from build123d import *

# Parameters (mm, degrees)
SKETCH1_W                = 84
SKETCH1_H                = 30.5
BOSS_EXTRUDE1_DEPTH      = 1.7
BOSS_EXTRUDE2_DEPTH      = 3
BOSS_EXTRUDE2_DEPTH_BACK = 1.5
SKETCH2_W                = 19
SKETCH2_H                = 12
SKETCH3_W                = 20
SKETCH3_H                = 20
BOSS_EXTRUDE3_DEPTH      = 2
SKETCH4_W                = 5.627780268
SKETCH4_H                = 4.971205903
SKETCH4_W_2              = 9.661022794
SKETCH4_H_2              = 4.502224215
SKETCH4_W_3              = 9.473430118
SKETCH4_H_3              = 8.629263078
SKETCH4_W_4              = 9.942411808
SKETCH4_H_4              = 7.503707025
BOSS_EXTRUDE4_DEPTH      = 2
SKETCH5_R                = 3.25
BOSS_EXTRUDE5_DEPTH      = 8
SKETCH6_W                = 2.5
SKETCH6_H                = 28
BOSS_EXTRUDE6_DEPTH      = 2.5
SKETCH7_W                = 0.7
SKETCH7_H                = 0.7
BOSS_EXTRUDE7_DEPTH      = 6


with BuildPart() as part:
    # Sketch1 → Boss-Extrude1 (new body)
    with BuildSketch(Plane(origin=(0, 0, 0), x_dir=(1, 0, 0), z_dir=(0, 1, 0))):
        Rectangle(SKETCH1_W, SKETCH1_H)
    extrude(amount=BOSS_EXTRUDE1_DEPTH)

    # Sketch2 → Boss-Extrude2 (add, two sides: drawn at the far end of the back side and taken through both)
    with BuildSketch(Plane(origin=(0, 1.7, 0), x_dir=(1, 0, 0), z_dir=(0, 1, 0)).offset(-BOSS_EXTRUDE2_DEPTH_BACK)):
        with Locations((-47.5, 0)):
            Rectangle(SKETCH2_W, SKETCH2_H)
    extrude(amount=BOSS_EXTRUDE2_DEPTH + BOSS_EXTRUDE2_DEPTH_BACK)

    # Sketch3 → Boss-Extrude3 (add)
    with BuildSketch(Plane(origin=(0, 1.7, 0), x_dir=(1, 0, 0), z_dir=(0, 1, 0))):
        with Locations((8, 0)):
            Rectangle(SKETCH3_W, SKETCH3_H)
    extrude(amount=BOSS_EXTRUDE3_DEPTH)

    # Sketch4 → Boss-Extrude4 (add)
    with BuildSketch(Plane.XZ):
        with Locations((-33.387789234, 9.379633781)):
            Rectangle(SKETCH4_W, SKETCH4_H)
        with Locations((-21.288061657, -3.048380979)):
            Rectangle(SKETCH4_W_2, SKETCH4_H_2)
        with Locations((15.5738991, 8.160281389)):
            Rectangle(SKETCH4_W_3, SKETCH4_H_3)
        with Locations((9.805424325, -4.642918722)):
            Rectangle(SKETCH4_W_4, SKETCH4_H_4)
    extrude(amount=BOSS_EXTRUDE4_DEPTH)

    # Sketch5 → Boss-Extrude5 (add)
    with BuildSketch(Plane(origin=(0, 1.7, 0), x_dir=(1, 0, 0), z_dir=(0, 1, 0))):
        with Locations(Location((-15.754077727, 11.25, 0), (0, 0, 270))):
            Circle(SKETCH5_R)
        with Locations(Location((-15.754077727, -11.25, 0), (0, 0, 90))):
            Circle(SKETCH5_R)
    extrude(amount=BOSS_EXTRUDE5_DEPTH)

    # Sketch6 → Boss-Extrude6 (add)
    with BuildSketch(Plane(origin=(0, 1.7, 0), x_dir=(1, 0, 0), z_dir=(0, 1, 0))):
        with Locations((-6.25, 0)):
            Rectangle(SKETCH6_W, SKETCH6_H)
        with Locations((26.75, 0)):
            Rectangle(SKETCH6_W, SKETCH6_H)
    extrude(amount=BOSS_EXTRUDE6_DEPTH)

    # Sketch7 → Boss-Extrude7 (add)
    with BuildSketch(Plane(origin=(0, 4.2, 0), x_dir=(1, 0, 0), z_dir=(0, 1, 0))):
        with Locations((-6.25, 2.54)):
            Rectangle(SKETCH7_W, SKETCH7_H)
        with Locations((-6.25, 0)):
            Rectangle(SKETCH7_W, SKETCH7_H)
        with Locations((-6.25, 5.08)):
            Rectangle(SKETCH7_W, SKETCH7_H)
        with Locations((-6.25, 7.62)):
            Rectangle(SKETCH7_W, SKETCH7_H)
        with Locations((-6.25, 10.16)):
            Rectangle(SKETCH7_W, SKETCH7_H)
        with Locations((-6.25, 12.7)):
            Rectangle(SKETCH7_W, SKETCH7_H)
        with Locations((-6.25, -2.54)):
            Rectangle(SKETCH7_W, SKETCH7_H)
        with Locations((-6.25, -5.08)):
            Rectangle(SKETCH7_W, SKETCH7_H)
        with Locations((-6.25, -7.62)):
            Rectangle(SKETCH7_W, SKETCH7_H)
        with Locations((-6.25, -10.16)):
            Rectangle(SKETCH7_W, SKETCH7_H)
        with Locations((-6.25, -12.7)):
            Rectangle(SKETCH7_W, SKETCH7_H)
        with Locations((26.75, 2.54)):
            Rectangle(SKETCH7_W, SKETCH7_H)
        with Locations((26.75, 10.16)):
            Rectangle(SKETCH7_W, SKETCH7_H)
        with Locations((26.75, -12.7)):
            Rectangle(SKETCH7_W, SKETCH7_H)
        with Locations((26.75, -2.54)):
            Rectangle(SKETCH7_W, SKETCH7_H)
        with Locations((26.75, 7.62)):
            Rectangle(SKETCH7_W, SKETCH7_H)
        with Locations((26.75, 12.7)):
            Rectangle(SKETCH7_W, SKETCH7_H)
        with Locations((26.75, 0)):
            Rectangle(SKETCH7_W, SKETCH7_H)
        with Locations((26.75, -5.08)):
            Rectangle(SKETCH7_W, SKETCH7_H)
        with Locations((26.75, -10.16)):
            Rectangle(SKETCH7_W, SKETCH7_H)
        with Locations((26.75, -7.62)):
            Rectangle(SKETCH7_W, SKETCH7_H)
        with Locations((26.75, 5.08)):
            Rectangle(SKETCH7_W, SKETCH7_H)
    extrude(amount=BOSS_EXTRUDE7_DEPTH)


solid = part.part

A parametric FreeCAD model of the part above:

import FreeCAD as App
import Part
import Sketcher

V = App.Vector


def add_polygon(sketch, points):
    """Adds a closed chain of lines whose ends are joined by coincident constraints."""
    first, n = sketch.GeometryCount, len(points)
    for a, b in zip(points, points[1:] + points[:1]):
        sketch.addGeometry(Part.LineSegment(App.Vector(*a, 0), App.Vector(*b, 0)), False)
    for i in range(n):
        sketch.addConstraint(Sketcher.Constraint("Coincident", first + i, 2, first + (i + 1) % n, 1))

doc = App.newDocument("Part")
body = doc.addObject("PartDesign::Body", "Body")

sketch1 = doc.addObject("Sketcher::SketchObject", "Sketch")
body.addObject(sketch1)
sketch1.AttachmentSupport = (doc.XZ_Plane, [""])
sketch1.MapMode = "FlatFace"
add_polygon(sketch1, [(-42, -15), (-42, 15), (42, 15), (42, -15)])
sketch1.addConstraint([
    Sketcher.Constraint("Vertical", 0),
    Sketcher.Constraint("Horizontal", 1),
    Sketcher.Constraint("Vertical", 2),
    Sketcher.Constraint("Horizontal", 3),
    Sketcher.Constraint("Symmetric", 0, 2, 2, 2, -1, 1),
    Sketcher.Constraint("DistanceX", 1, 1, 1, 2, 84.0),
    Sketcher.Constraint("DistanceY", 0, 1, 0, 2, 30.5),
])
pad1 = doc.addObject("PartDesign::Pad", "Pad")
body.addObject(pad1)
pad1.Profile = sketch1
pad1.Length = 1.7
pad1.Reversed = True

sketch2 = doc.addObject("Sketcher::SketchObject", "Sketch001")
body.addObject(sketch2)
sketch2.AttachmentSupport = (doc.XZ_Plane, [""])
sketch2.MapMode = "FlatFace"
sketch2.AttachmentOffset = App.Placement(V(0, 0, -1.7), App.Rotation())
add_polygon(sketch2, [(-57, -6), (-57, 6), (-38, 6), (-38, -6)])
sketch2.addConstraint([
    Sketcher.Constraint("Vertical", 0),
    Sketcher.Constraint("Horizontal", 1),
    Sketcher.Constraint("Vertical", 2),
    Sketcher.Constraint("Horizontal", 3),
    Sketcher.Constraint("DistanceX", 1, 1, 1, 2, 19.0),
    Sketcher.Constraint("DistanceY", 0, 1, 0, 2, 12.0),
    Sketcher.Constraint("DistanceX", 0, 2, -1, 1, 57.0),
    Sketcher.Constraint("DistanceY", -1, 1, 0, 2, 6.0),
])
pad2 = doc.addObject("PartDesign::Pad", "Pad001")
body.addObject(pad2)
pad2.Profile = sketch2
pad2.Type = "TwoLengths"
pad2.Length = 3
pad2.Length2 = 1.5
pad2.Reversed = True

sketch3 = doc.addObject("Sketcher::SketchObject", "Sketch002")
body.addObject(sketch3)
sketch3.AttachmentSupport = (doc.XZ_Plane, [""])
sketch3.MapMode = "FlatFace"
sketch3.AttachmentOffset = App.Placement(V(0, 0, -1.7), App.Rotation())
add_polygon(sketch3, [(-2, -10), (-2, 10), (18, 10), (18, -10)])
sketch3.addConstraint([
    Sketcher.Constraint("Vertical", 0),
    Sketcher.Constraint("Horizontal", 1),
    Sketcher.Constraint("Vertical", 2),
    Sketcher.Constraint("Horizontal", 3),
    Sketcher.Constraint("Equal", 3, 0),
    Sketcher.Constraint("DistanceX", 1, 1, 1, 2, 20.0),
    Sketcher.Constraint("DistanceX", 0, 2, -1, 1, 2.0),
    Sketcher.Constraint("DistanceY", -1, 1, 0, 2, 10.0),
])
pad3 = doc.addObject("PartDesign::Pad", "Pad002")
body.addObject(pad3)
pad3.Profile = sketch3
pad3.Length = 2
pad3.Reversed = True

sketch4 = doc.addObject("Sketcher::SketchObject", "Sketch003")
body.addObject(sketch4)
sketch4.AttachmentSupport = (doc.XZ_Plane, [""])
sketch4.MapMode = "FlatFace"
add_polygon(sketch4, [(-36.2, 11.9), (-36.2, 6.9), (-30.6, 6.9), (-30.6, 11.9)])
add_polygon(sketch4, [(-26.1, -0.8), (-26.1, -5.3), (-16.5, -5.3), (-16.5, -0.8)])
add_polygon(sketch4, [(10.8, 12.5), (10.8, 3.8), (20.3, 3.8), (20.3, 12.5)])
add_polygon(sketch4, [(4.8, -0.9), (4.8, -8.4), (14.8, -8.4), (14.8, -0.9)])
sketch4.addConstraint([
    Sketcher.Constraint("Vertical", 0),
    Sketcher.Constraint("Horizontal", 1),
    Sketcher.Constraint("Vertical", 2),
    Sketcher.Constraint("Horizontal", 3),
    Sketcher.Constraint("Vertical", 4),
    Sketcher.Constraint("Horizontal", 5),
    Sketcher.Constraint("Vertical", 6),
    Sketcher.Constraint("Horizontal", 7),
    Sketcher.Constraint("Vertical", 8),
    Sketcher.Constraint("Horizontal", 9),
    Sketcher.Constraint("Vertical", 10),
    Sketcher.Constraint("Horizontal", 11),
    Sketcher.Constraint("Vertical", 12),
    Sketcher.Constraint("Horizontal", 13),
    Sketcher.Constraint("Vertical", 14),
    Sketcher.Constraint("Horizontal", 15),
    Sketcher.Constraint("DistanceX", 1, 1, 1, 2, 5.62778),
    Sketcher.Constraint("DistanceX", 9, 1, 9, 2, 9.47343),
    Sketcher.Constraint("DistanceX", 13, 1, 13, 2, 9.942412),
    Sketcher.Constraint("DistanceX", 1, 2, -1, 1, 30.573899),
    Sketcher.Constraint("DistanceY", 6, 2, 1, 2, 7.6913),
    Sketcher.Constraint("DistanceX", 5, 1, 5, 2, 9.661023),
    Sketcher.Constraint("DistanceY", 0, 2, 0, 1, 4.971206),
    Sketcher.Constraint("DistanceY", 4, 2, 4, 1, 4.502224),
    Sketcher.Constraint("DistanceY", 8, 2, 8, 1, 8.629263),
    Sketcher.Constraint("DistanceY", 12, 2, 12, 1, 7.503707),
    Sketcher.Constraint("DistanceY", -1, 1, 0, 2, 6.894031),
    Sketcher.Constraint("DistanceX", 5, 2, -1, 1, 16.45755),
    Sketcher.Constraint("DistanceY", -1, 1, 8, 2, 3.84565),
    Sketcher.Constraint("DistanceX", -1, 1, 12, 2, 4.834218),
    Sketcher.Constraint("DistanceY", 12, 2, 5, 2, 3.095279),
    Sketcher.Constraint("DistanceX", -1, 1, 8, 2, 10.837184),
])
pad4 = doc.addObject("PartDesign::Pad", "Pad003")
body.addObject(pad4)
pad4.Profile = sketch4
pad4.Length = 2

sketch5 = doc.addObject("Sketcher::SketchObject", "Sketch004")
body.addObject(sketch5)
sketch5.AttachmentSupport = (doc.XZ_Plane, [""])
sketch5.MapMode = "FlatFace"
sketch5.AttachmentOffset = App.Placement(V(0, 0, -1.7), App.Rotation())
sketch5.addGeometry([
    Part.Circle(V(-15.8, -11.2, 0), V(0, 0, 1), 3.2),
    Part.Circle(V(-15.8, 11.2, 0), V(0, 0, 1), 3.2),
], False)
sketch5.addConstraint([
    Sketcher.Constraint("Equal", 0, 1),
    Sketcher.Constraint("Symmetric", 0, 3, 1, 3, -1),
    Sketcher.Constraint("Diameter", 0, 6.5),
    Sketcher.Constraint("DistanceY", 0, 3, 1, 3, 22.5),
    Sketcher.Constraint("DistanceX", 0, 3, -1, 1, 15.754078),
])
pad5 = doc.addObject("PartDesign::Pad", "Pad004")
body.addObject(pad5)
pad5.Profile = sketch5
pad5.Length = 8
pad5.Reversed = True

sketch6 = doc.addObject("Sketcher::SketchObject", "Sketch005")
body.addObject(sketch6)
sketch6.AttachmentSupport = (doc.XZ_Plane, [""])
sketch6.MapMode = "FlatFace"
sketch6.AttachmentOffset = App.Placement(V(0, 0, -1.7), App.Rotation())
add_polygon(sketch6, [(-7.5, -14), (-7.5, 14), (-5, 14), (-5, -14)])
add_polygon(sketch6, [(25.5, -14), (25.5, 14), (28, 14), (28, -14)])
sketch6.addConstraint([
    Sketcher.Constraint("Vertical", 0),
    Sketcher.Constraint("Horizontal", 1),
    Sketcher.Constraint("Vertical", 2),
    Sketcher.Constraint("Horizontal", 3),
    Sketcher.Constraint("Vertical", 4),
    Sketcher.Constraint("Horizontal", 5),
    Sketcher.Constraint("Vertical", 6),
    Sketcher.Constraint("Horizontal", 7),
    Sketcher.Constraint("Horizontal", 1, 2, 4, 2),
    Sketcher.Constraint("Horizontal", 3, 2, 6, 2),
    Sketcher.Constraint("Equal", 3, 5),
    Sketcher.Constraint("DistanceY", 0, 1, 0, 2, 28.0),
    Sketcher.Constraint("DistanceX", 1, 1, 1, 2, 2.5),
    Sketcher.Constraint("DistanceY", -1, 1, 0, 2, 14.0),
    Sketcher.Constraint("DistanceX", 1, 2, -1, 1, 5.0),
    Sketcher.Constraint("DistanceX", -1, 1, 5, 2, 28.0),
])
pad6 = doc.addObject("PartDesign::Pad", "Pad005")
body.addObject(pad6)
pad6.Profile = sketch6
pad6.Length = 2.5
pad6.Reversed = True

sketch7 = doc.addObject("Sketcher::SketchObject", "Sketch006")
body.addObject(sketch7)
sketch7.AttachmentSupport = (doc.XZ_Plane, [""])
sketch7.MapMode = "FlatFace"
sketch7.AttachmentOffset = App.Placement(V(0, 0, -4.2), App.Rotation())
add_polygon(sketch7, [(-6.6, -2.9), (-6.6, -2.2), (-5.9, -2.2), (-5.9, -2.9)])
add_polygon(sketch7, [(-6.6, -0.3), (-6.6, 0.3), (-5.9, 0.3), (-5.9, -0.3)])
add_polygon(sketch7, [(-6.6, -5.4), (-6.6, -4.7), (-5.9, -4.7), (-5.9, -5.4)])
add_polygon(sketch7, [(-6.6, -8), (-6.6, -7.3), (-5.9, -7.3), (-5.9, -8)])
add_polygon(sketch7, [(-6.6, -10.5), (-6.6, -9.8), (-5.9, -9.8), (-5.9, -10.5)])
add_polygon(sketch7, [(-6.6, -13.1), (-6.6, -12.3), (-5.9, -12.3), (-5.9, -13.1)])
add_polygon(sketch7, [(-6.6, 2.2), (-6.6, 2.9), (-5.9, 2.9), (-5.9, 2.2)])
add_polygon(sketch7, [(-6.6, 4.7), (-6.6, 5.4), (-5.9, 5.4), (-5.9, 4.7)])
add_polygon(sketch7, [(-6.6, 7.3), (-6.6, 8), (-5.9, 8), (-5.9, 7.3)])
add_polygon(sketch7, [(-6.6, 9.8), (-6.6, 10.5), (-5.9, 10.5), (-5.9, 9.8)])
add_polygon(sketch7, [(-6.6, 12.3), (-6.6, 13.1), (-5.9, 13.1), (-5.9, 12.3)])
add_polygon(sketch7, [(26.4, -2.9), (26.4, -2.2), (27.1, -2.2), (27.1, -2.9)])
add_polygon(sketch7, [(26.4, -10.5), (26.4, -9.8), (27.1, -9.8), (27.1, -10.5)])
add_polygon(sketch7, [(26.4, 12.3), (26.4, 13.1), (27.1, 13.1), (27.1, 12.3)])
add_polygon(sketch7, [(26.4, 2.2), (26.4, 2.9), (27.1, 2.9), (27.1, 2.2)])
add_polygon(sketch7, [(26.4, -8), (26.4, -7.3), (27.1, -7.3), (27.1, -8)])
add_polygon(sketch7, [(26.4, -13.1), (26.4, -12.3), (27.1, -12.3), (27.1, -13.1)])
add_polygon(sketch7, [(26.4, -0.3), (26.4, 0.3), (27.1, 0.3), (27.1, -0.3)])
add_polygon(sketch7, [(26.4, 4.7), (26.4, 5.4), (27.1, 5.4), (27.1, 4.7)])
add_polygon(sketch7, [(26.4, 9.8), (26.4, 10.5), (27.1, 10.5), (27.1, 9.8)])
add_polygon(sketch7, [(26.4, 7.3), (26.4, 8), (27.1, 8), (27.1, 7.3)])
add_polygon(sketch7, [(26.4, -5.4), (26.4, -4.7), (27.1, -4.7), (27.1, -5.4)])
sketch7.addConstraint([
    Sketcher.Constraint("Vertical", 0),
    Sketcher.Constraint("Horizontal", 1),
    Sketcher.Constraint("Vertical", 2),
    Sketcher.Constraint("Horizontal", 3),
    Sketcher.Constraint("Vertical", 4),
    Sketcher.Constraint("Horizontal", 5),
    Sketcher.Constraint("Vertical", 6),
    Sketcher.Constraint("Horizontal", 7),
    Sketcher.Constraint("Vertical", 8),
    Sketcher.Constraint("Horizontal", 9),
    Sketcher.Constraint("Vertical", 10),
    Sketcher.Constraint("Horizontal", 11),
    Sketcher.Constraint("Vertical", 12),
    Sketcher.Constraint("Horizontal", 13),
    Sketcher.Constraint("Vertical", 14),
    Sketcher.Constraint("Horizontal", 15),
    Sketcher.Constraint("Vertical", 16),
    Sketcher.Constraint("Horizontal", 17),
    Sketcher.Constraint("Vertical", 18),
    Sketcher.Constraint("Horizontal", 19),
    Sketcher.Constraint("Vertical", 20),
    Sketcher.Constraint("Horizontal", 21),
    Sketcher.Constraint("Vertical", 22),
    Sketcher.Constraint("Horizontal", 23),
    Sketcher.Constraint("Vertical", 24),
    Sketcher.Constraint("Horizontal", 25),
    Sketcher.Constraint("Vertical", 26),
    Sketcher.Constraint("Horizontal", 27),
    Sketcher.Constraint("Vertical", 28),
    Sketcher.Constraint("Horizontal", 29),
    Sketcher.Constraint("Vertical", 30),
    Sketcher.Constraint("Horizontal", 31),
    Sketcher.Constraint("Vertical", 32),
    Sketcher.Constraint("Horizontal", 33),
    Sketcher.Constraint("Vertical", 34),
    Sketcher.Constraint("Horizontal", 35),
    Sketcher.Constraint("Vertical", 36),
    Sketcher.Constraint("Horizontal", 37),
    Sketcher.Constraint("Vertical", 38),
    Sketcher.Constraint("Horizontal", 39),
    Sketcher.Constraint("Vertical", 40),
    Sketcher.Constraint("Horizontal", 41),
    Sketcher.Constraint("Vertical", 42),
    Sketcher.Constraint("Horizontal", 43),
    Sketcher.Constraint("Vertical", 44),
    Sketcher.Constraint("Horizontal", 45),
    Sketcher.Constraint("Vertical", 46),
    Sketcher.Constraint("Horizontal", 47),
    Sketcher.Constraint("Vertical", 48),
    Sketcher.Constraint("Horizontal", 49),
    Sketcher.Constraint("Vertical", 50),
    Sketcher.Constraint("Horizontal", 51),
    Sketcher.Constraint("Vertical", 52),
    Sketcher.Constraint("Horizontal", 53),
    Sketcher.Constraint("Vertical", 54),
    Sketcher.Constraint("Horizontal", 55),
    Sketcher.Constraint("Vertical", 56),
    Sketcher.Constraint("Horizontal", 57),
    Sketcher.Constraint("Vertical", 58),
    Sketcher.Constraint("Horizontal", 59),
    Sketcher.Constraint("Vertical", 60),
    Sketcher.Constraint("Horizontal", 61),
    Sketcher.Constraint("Vertical", 62),
    Sketcher.Constraint("Horizontal", 63),
    Sketcher.Constraint("Vertical", 64),
    Sketcher.Constraint("Horizontal", 65),
    Sketcher.Constraint("Vertical", 66),
    Sketcher.Constraint("Horizontal", 67),
    Sketcher.Constraint("Vertical", 68),
    Sketcher.Constraint("Horizontal", 69),
    Sketcher.Constraint("Vertical", 70),
    Sketcher.Constraint("Horizontal", 71),
    Sketcher.Constraint("Vertical", 72),
    Sketcher.Constraint("Horizontal", 73),
    Sketcher.Constraint("Vertical", 74),
    Sketcher.Constraint("Horizontal", 75),
    Sketcher.Constraint("Vertical", 76),
    Sketcher.Constraint("Horizontal", 77),
    Sketcher.Constraint("Vertical", 78),
    Sketcher.Constraint("Horizontal", 79),
    Sketcher.Constraint("Vertical", 80),
    Sketcher.Constraint("Horizontal", 81),
    Sketcher.Constraint("Vertical", 82),
    Sketcher.Constraint("Horizontal", 83),
    Sketcher.Constraint("Vertical", 84),
    Sketcher.Constraint("Horizontal", 85),
    Sketcher.Constraint("Vertical", 86),
    Sketcher.Constraint("Horizontal", 87),
    Sketcher.Constraint("Symmetric", 3, 2, 24, 2, -1),
    Sketcher.Constraint("Symmetric", 1, 2, 26, 2, -1),
    Sketcher.Constraint("Symmetric", 11, 2, 28, 2, -1),
    Sketcher.Constraint("Symmetric", 9, 2, 30, 2, -1),
    Sketcher.Constraint("Symmetric", 15, 2, 32, 2, -1),
    Sketcher.Constraint("Symmetric", 13, 2, 34, 2, -1),
    Sketcher.Constraint("Symmetric", 19, 2, 36, 2, -1),
    Sketcher.Constraint("Symmetric", 17, 2, 38, 2, -1),
    Sketcher.Constraint("Symmetric", 23, 2, 40, 2, -1),
    Sketcher.Constraint("Symmetric", 21, 2, 42, 2, -1),
    Sketcher.Constraint("Symmetric", 47, 2, 56, 2, -1),
    Sketcher.Constraint("Symmetric", 45, 2, 58, 2, -1),
    Sketcher.Constraint("Symmetric", 55, 2, 64, 2, -1),
    Sketcher.Constraint("Symmetric", 53, 2, 66, 2, -1),
    Sketcher.Constraint("Symmetric", 51, 2, 76, 2, -1),
    Sketcher.Constraint("Symmetric", 49, 2, 78, 2, -1),
    Sketcher.Constraint("Symmetric", 63, 2, 80, 2, -1),
    Sketcher.Constraint("Symmetric", 61, 2, 82, 2, -1),
    Sketcher.Constraint("Symmetric", 75, 2, 84, 2, -1),
    Sketcher.Constraint("Symmetric", 73, 2, 86, 2, -1),
    Sketcher.Constraint("Horizontal", 1, 2, 44, 2),
    Sketcher.Constraint("Horizontal", 3, 2, 46, 2),
    Sketcher.Constraint("Horizontal", 17, 2, 48, 2),
    Sketcher.Constraint("Horizontal", 19, 2, 50, 2),
    Sketcher.Constraint("Horizontal", 41, 2, 52, 2),
    Sketcher.Constraint("Horizontal", 43, 2, 54, 2),
    Sketcher.Constraint("Horizontal", 13, 2, 60, 2),
    Sketcher.Constraint("Horizontal", 15, 2, 62, 2),
    Sketcher.Constraint("Horizontal", 5, 2, 68, 2),
    Sketcher.Constraint("Horizontal", 7, 2, 70, 2),
    Sketcher.Constraint("Horizontal", 29, 2, 72, 2),
    Sketcher.Constraint("Horizontal", 31, 2, 74, 2),
    Sketcher.Constraint("Vertical", 3, 2, 4, 2),
    Sketcher.Constraint("Vertical", 2, 2, 5, 2),
    Sketcher.Constraint("Vertical", 7, 2, 8, 2),
    Sketcher.Constraint("Vertical", 6, 2, 9, 2),
    Sketcher.Constraint("Vertical", 11, 2, 12, 2),
    Sketcher.Constraint("Vertical", 10, 2, 13, 2),
    Sketcher.Constraint("Vertical", 15, 2, 16, 2),
    Sketcher.Constraint("Vertical", 14, 2, 17, 2),
    Sketcher.Constraint("Vertical", 19, 2, 20, 2),
    Sketcher.Constraint("Vertical", 18, 2, 21, 2),
    Sketcher.Constraint("Vertical", 47, 2, 48, 2),
    Sketcher.Constraint("Vertical", 46, 2, 49, 2),
    Sketcher.Constraint("Vertical", 51, 2, 52, 2),
    Sketcher.Constraint("Vertical", 50, 2, 53, 2),
    Sketcher.Constraint("Vertical", 59, 2, 60, 2),
    Sketcher.Constraint("Vertical", 58, 2, 61, 2),
    Sketcher.Constraint("Vertical", 67, 2, 68, 2),
    Sketcher.Constraint("Vertical", 66, 2, 69, 2),
    Sketcher.Constraint("Vertical", 71, 2, 72, 2),
    Sketcher.Constraint("Vertical", 70, 2, 73, 2),
    Sketcher.Constraint("Equal", 43, 45),
    Sketcher.Constraint("Equal", 87, 0),
    Sketcher.Constraint("Equal", 2, 4),
    Sketcher.Constraint("Equal", 6, 8),
    Sketcher.Constraint("Equal", 10, 12),
    Sketcher.Constraint("Equal", 14, 16),
    Sketcher.Constraint("Equal", 18, 20),
    Sketcher.Constraint("DistanceX", 1, 1, 1, 2, 0.7),
    Sketcher.Constraint("DistanceX", 0, 2, -1, 1, 6.6),
    Sketcher.Constraint("DistanceX", -1, 1, 44, 2, 26.4),
    Sketcher.Constraint("DistanceY", 0, 2, -1, 1, 2.19),
    Sketcher.Constraint("DistanceY", -1, 1, 4, 2, 0.35),
    Sketcher.Constraint("DistanceY", 8, 2, -1, 1, 4.73),
    Sketcher.Constraint("DistanceY", 12, 2, -1, 1, 7.27),
    Sketcher.Constraint("DistanceY", 16, 2, -1, 1, 9.81),
    Sketcher.Constraint("DistanceY", 20, 2, -1, 1, 12.35),
])
pad7 = doc.addObject("PartDesign::Pad", "Pad006")
body.addObject(pad7)
pad7.Profile = sketch7
pad7.Length = 6
pad7.Reversed = True

doc.recompute()
